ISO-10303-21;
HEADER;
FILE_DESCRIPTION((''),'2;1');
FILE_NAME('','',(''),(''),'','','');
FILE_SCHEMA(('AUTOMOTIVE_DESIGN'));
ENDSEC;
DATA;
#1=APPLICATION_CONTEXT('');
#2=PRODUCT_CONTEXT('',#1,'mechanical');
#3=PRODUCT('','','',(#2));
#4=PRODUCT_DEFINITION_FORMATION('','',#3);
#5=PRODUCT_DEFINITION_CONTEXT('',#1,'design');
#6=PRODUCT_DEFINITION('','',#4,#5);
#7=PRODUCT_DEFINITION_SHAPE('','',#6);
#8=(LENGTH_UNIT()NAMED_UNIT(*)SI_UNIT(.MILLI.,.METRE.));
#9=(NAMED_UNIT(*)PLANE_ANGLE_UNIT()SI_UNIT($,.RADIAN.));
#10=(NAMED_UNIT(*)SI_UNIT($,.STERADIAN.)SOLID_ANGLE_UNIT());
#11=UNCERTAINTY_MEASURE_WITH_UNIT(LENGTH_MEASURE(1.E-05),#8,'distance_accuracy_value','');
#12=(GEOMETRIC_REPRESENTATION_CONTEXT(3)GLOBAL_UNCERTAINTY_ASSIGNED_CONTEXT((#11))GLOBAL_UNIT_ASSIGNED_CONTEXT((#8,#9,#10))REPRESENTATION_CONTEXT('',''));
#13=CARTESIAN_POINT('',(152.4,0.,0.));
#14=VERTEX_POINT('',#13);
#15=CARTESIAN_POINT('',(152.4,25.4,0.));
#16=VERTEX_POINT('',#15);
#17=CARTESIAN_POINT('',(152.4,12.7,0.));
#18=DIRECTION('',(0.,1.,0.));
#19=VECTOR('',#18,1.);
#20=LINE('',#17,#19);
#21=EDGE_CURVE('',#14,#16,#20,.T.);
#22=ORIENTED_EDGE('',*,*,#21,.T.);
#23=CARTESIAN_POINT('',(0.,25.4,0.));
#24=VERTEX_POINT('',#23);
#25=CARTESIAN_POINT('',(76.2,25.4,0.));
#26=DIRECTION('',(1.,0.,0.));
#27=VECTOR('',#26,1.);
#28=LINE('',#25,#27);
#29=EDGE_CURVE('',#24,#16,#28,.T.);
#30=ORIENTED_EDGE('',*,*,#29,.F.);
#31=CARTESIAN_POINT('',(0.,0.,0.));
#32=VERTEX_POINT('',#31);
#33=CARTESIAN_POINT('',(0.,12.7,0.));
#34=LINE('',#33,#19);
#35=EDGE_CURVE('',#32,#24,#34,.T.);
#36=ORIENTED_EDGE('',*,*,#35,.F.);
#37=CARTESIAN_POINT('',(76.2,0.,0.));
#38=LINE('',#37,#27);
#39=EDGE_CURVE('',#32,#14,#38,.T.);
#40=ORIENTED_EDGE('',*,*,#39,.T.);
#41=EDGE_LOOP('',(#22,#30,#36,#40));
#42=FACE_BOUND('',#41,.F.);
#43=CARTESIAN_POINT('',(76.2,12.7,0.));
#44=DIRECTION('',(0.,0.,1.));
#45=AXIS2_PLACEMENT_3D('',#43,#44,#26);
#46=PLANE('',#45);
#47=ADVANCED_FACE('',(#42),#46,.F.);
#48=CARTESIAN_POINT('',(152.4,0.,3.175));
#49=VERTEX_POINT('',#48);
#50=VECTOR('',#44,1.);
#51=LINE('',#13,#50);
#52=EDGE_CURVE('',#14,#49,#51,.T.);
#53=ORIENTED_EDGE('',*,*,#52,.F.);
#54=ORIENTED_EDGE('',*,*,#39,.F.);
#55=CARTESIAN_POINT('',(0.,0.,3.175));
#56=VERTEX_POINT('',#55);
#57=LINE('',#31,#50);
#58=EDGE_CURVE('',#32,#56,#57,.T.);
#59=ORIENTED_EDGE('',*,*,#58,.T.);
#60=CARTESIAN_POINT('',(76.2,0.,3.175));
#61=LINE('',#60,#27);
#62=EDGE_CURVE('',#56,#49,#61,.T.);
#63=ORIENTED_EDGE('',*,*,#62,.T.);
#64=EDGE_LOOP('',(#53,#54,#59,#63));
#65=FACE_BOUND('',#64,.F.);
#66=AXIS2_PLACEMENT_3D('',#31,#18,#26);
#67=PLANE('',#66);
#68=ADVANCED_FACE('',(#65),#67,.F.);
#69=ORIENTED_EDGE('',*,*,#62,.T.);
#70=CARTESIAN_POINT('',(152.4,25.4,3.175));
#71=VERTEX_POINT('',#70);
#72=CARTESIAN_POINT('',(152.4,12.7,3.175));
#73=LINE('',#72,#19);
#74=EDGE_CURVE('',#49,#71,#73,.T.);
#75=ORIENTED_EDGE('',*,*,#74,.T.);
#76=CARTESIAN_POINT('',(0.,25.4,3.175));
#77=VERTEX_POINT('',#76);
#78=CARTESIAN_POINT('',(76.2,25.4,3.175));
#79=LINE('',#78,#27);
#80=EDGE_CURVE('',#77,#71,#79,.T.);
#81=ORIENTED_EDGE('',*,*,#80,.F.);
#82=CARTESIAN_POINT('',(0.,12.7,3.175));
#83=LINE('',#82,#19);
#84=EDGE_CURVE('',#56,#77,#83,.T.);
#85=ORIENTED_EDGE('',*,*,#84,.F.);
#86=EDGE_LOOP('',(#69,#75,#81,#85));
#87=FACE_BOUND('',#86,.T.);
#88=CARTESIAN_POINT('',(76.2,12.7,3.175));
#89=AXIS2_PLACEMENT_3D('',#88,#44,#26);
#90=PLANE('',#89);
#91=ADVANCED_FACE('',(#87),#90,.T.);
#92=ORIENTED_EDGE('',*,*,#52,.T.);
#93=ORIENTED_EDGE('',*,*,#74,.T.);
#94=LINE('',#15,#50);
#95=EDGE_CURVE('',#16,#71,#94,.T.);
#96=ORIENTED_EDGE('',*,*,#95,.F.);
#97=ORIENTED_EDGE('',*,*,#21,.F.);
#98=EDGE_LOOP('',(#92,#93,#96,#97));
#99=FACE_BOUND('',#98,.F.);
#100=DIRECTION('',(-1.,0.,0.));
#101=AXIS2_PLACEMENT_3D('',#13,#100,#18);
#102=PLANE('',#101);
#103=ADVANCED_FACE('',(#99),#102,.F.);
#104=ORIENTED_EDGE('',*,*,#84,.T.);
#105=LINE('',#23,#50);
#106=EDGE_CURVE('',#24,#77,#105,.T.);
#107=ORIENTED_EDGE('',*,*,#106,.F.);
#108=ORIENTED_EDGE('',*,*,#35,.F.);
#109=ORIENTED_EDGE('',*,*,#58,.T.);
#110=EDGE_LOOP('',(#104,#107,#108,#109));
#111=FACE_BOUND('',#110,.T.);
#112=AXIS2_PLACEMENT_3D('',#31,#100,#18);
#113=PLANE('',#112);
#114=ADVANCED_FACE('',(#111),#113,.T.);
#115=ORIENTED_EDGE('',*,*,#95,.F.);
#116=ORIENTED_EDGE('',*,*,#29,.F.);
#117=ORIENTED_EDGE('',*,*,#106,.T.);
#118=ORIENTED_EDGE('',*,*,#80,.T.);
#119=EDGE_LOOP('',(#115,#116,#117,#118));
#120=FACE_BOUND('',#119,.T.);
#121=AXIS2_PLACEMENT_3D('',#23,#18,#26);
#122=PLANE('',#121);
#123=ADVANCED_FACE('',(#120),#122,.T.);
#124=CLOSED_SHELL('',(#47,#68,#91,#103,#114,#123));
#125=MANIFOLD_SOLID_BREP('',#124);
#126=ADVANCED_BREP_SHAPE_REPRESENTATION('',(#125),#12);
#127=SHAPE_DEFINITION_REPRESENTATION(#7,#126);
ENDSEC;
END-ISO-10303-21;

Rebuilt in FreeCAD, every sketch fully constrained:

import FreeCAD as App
import Part
import Sketcher

V = App.Vector
Q = App.Units.Quantity

doc = App.newDocument("Part")
body = doc.addObject("PartDesign::Body", "Body")

sketch1 = doc.addObject("Sketcher::SketchObject", "Sketch")
body.addObject(sketch1)
sketch1.AttachmentSupport = (doc.XY_Plane, [""])
sketch1.MapMode = "FlatFace"
sketch1.addGeometry([
    Part.LineSegment(V(0, 25, 0), V(0, 0, 0)),
    Part.LineSegment(V(0, 0, 0), V(152, 0, 0)),
    Part.LineSegment(V(152, 0, 0), V(152, 25, 0)),
    Part.LineSegment(V(152, 25, 0), V(0, 25, 0)),
], False)
sketch1.addConstraint([
    Sketcher.Constraint("Coincident", 0, 2, 1, 1),
    Sketcher.Constraint("Coincident", 1, 2, 2, 1),
    Sketcher.Constraint("Coincident", 2, 2, 3, 1),
    Sketcher.Constraint("Coincident", 3, 2, 0, 1),
    Sketcher.Constraint("Vertical", 0),
    Sketcher.Constraint("Horizontal", 1),
    Sketcher.Constraint("Vertical", 2),
    Sketcher.Constraint("Horizontal", 3),
    Sketcher.Constraint("Coincident", 0, 2, -1, 1),
    Sketcher.Constraint("DistanceX", 1, 1, 1, 2, Q("6 in")),
    Sketcher.Constraint("DistanceY", 0, 2, 0, 1, Q("1 in")),
])
pad1 = doc.addObject("PartDesign::Pad", "Pad")
body.addObject(pad1)
pad1.Profile = sketch1
pad1.Length = Q("0.125 in")

doc.recompute()
